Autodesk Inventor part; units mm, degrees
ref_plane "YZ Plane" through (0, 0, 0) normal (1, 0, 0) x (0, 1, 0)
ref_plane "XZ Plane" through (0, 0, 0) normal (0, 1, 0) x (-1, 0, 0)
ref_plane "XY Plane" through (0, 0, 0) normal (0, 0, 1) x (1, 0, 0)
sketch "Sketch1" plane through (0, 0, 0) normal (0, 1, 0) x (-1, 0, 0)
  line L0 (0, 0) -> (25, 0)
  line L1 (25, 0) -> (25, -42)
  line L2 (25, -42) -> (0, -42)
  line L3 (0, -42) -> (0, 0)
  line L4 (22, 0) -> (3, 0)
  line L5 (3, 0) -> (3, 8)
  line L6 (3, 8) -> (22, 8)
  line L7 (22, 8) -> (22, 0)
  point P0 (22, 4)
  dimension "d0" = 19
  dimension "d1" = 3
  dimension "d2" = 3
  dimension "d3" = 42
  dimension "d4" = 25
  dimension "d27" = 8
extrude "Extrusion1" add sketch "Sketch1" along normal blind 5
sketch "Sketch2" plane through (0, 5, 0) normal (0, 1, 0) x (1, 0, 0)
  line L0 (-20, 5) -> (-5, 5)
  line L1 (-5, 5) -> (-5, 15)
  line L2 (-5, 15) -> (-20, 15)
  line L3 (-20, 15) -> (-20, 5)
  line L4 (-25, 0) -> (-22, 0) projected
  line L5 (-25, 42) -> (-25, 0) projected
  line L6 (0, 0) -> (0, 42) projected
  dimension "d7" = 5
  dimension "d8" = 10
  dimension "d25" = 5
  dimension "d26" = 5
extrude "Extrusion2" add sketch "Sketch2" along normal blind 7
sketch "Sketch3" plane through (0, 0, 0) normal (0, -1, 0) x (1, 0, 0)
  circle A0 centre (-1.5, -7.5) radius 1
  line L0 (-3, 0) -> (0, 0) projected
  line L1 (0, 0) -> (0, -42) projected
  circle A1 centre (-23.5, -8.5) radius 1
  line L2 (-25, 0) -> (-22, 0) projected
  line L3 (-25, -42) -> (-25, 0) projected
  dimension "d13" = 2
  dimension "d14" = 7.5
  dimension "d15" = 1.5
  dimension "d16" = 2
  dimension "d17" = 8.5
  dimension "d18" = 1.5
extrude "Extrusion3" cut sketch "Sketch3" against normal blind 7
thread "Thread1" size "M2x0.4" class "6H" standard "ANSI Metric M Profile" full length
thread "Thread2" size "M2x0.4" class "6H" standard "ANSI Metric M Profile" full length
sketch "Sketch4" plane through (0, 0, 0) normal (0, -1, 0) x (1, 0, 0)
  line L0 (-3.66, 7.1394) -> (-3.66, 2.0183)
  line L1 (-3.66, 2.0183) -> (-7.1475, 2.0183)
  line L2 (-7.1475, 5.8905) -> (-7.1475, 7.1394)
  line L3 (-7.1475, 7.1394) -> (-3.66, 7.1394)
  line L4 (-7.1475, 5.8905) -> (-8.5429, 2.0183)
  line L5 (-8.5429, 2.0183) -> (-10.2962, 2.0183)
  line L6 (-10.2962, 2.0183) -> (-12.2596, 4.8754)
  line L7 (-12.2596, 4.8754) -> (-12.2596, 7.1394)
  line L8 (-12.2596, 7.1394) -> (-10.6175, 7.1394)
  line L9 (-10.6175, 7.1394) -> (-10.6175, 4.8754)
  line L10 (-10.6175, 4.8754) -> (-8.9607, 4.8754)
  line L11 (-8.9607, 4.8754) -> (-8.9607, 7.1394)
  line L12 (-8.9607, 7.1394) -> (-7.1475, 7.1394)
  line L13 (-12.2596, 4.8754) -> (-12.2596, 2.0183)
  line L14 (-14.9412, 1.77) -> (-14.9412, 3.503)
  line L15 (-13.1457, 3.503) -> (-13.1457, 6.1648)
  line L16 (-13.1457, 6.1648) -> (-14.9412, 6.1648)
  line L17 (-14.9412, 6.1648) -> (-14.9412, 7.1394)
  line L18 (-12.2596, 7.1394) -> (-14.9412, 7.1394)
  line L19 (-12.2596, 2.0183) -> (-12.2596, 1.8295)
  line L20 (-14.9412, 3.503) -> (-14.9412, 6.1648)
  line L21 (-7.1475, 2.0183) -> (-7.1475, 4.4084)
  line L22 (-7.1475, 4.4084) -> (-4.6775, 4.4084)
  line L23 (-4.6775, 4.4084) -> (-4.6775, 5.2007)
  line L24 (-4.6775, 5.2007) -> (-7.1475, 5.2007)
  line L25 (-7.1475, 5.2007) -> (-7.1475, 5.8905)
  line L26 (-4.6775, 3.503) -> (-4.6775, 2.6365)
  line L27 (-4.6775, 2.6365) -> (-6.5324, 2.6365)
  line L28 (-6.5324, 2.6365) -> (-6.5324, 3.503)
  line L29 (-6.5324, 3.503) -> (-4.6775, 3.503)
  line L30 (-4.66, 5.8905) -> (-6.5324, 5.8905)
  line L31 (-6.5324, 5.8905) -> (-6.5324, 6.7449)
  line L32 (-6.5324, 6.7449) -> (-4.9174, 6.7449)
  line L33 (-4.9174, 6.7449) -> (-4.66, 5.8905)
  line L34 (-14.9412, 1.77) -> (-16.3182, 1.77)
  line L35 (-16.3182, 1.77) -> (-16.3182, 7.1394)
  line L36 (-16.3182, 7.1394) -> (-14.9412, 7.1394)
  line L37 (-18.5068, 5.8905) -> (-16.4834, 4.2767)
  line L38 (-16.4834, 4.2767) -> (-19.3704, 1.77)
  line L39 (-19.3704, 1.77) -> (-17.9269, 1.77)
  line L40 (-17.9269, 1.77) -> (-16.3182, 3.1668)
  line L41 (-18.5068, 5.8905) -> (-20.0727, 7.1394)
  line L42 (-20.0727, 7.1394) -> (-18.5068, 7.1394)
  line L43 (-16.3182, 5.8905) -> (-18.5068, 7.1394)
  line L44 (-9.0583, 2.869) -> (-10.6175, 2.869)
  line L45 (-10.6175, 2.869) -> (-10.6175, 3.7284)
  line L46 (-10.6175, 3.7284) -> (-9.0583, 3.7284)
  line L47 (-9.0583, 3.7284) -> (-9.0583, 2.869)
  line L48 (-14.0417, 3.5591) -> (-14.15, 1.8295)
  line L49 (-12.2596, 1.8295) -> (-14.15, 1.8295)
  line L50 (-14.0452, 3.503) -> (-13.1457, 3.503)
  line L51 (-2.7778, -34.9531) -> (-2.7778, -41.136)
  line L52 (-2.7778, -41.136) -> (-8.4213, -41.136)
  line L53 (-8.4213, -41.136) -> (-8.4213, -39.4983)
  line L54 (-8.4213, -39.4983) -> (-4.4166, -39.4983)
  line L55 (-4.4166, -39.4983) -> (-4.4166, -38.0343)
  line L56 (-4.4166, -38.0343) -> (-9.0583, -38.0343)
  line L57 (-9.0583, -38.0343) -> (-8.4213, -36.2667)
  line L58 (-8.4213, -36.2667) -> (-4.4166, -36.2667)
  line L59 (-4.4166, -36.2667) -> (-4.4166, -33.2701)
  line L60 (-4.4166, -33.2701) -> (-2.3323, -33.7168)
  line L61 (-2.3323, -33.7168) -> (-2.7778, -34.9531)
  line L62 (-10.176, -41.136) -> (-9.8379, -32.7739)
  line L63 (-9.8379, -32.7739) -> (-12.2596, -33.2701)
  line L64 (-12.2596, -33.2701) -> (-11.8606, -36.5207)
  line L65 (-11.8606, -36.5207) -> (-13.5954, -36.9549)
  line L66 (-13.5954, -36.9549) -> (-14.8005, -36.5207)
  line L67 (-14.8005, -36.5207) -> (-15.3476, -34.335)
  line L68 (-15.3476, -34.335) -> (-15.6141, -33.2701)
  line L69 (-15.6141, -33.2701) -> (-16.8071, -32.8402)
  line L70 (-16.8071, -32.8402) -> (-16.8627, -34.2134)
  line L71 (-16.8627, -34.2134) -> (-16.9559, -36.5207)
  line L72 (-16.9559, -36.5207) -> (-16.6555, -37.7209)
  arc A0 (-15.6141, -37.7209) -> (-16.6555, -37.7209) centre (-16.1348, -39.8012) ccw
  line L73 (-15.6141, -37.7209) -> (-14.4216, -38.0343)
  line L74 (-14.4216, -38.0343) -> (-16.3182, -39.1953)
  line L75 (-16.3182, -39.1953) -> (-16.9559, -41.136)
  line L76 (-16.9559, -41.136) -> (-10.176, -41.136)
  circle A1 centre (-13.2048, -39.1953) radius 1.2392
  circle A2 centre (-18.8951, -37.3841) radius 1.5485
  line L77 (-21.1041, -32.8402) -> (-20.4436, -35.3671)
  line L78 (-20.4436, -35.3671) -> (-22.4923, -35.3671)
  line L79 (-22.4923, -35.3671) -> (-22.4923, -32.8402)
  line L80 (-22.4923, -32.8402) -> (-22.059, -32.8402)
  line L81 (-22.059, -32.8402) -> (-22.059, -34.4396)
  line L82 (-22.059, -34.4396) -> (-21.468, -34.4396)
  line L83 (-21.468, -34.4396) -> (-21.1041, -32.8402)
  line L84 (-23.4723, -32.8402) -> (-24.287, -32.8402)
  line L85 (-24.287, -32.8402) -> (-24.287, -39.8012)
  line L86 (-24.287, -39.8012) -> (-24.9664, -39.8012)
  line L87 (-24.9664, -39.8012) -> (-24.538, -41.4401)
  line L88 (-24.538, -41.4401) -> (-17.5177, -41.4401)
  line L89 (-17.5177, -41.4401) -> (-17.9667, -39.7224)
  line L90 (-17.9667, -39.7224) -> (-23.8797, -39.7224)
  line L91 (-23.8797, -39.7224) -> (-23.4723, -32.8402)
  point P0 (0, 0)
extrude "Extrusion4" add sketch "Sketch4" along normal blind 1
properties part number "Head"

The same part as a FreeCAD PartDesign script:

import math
import FreeCAD as App
import Part
import Sketcher
from FreeCAD import Vector
Q = App.Units.Quantity


def add_polygon(sketch, points):
    """Adds a closed chain of lines whose ends are joined by coincident constraints."""
    first, n = sketch.GeometryCount, len(points)
    for a, b in zip(points, points[1:] + points[:1]):
        sketch.addGeometry(Part.LineSegment(App.Vector(*a, 0), App.Vector(*b, 0)), False)
    for i in range(n):
        sketch.addConstraint(Sketcher.Constraint("Coincident", first + i, 2, first + (i + 1) % n, 1))

doc = App.newDocument("Part")
body = doc.addObject("PartDesign::Body", "Body")

sketch1 = body.newObject("Sketcher::SketchObject", "Sketch")
sketch1.AttachmentSupport = (doc.getObject("XZ_Plane"), [""])
sketch1.MapMode = "FlatFace"
add_polygon(sketch1, [(-3, 0), (0, 0), (0, -42), (-25, -42), (-25, 0), (-22, 0), (-22, 8), (-3, 8)])
sketch1.addConstraint([
    Sketcher.Constraint("Horizontal", 0),
    Sketcher.Constraint("Vertical", 1),
    Sketcher.Constraint("Horizontal", 2),
    Sketcher.Constraint("Vertical", 3),
    Sketcher.Constraint("Horizontal", 4),
    Sketcher.Constraint("Vertical", 5),
    Sketcher.Constraint("Horizontal", 6),
    Sketcher.Constraint("Vertical", 7),
    Sketcher.Constraint("Coincident", 0, 2, -1, 1),
    Sketcher.Constraint("PointOnObject", 3, 2, -1),
    Sketcher.Constraint("Equal", 0, 4),
    Sketcher.Constraint("DistanceX", 0, 1, 0, 2, Q("3 mm")),
    Sketcher.Constraint("DistanceX", 2, 2, 2, 1, Q("25 mm")),
    Sketcher.Constraint("DistanceY", 1, 2, 1, 1, Q("42 mm")),
    Sketcher.Constraint("DistanceY", 5, 1, 5, 2, Q("8 mm")),
])
pad1 = body.newObject("PartDesign::Pad", "Pad")
pad1.Profile = sketch1
pad1.Length = 5
pad1.Reversed = True

sketch2 = body.newObject("Sketcher::SketchObject", "Sketch001")
sketch2.AttachmentSupport = (doc.getObject("XZ_Plane"), [""])
sketch2.MapMode = "FlatFace"
sketch2.AttachmentOffset = App.Placement(Vector(0, 0, -5), App.Rotation())
add_polygon(sketch2, [(-20, -15), (-20, -5), (-5, -5), (-5, -15)])
sketch2.addConstraint([
    Sketcher.Constraint("Vertical", 0),
    Sketcher.Constraint("Horizontal", 1),
    Sketcher.Constraint("Vertical", 2),
    Sketcher.Constraint("Horizontal", 3),
    Sketcher.Constraint("DistanceY", 0, 1, 0, 2, Q("10 mm")),
    Sketcher.Constraint("DistanceY", 0, 2, -1, 1, Q("5 mm")),
    Sketcher.Constraint("DistanceX", 1, 2, -1, 1, Q("5 mm")),
    Sketcher.Constraint("DistanceX", 1, 1, 1, 2, Q("15 mm")),
])
pad2 = body.newObject("PartDesign::Pad", "Pad001")
pad2.Profile = sketch2
pad2.Length = 7
pad2.Reversed = True

sketch3 = body.newObject("Sketcher::SketchObject", "Sketch002")
sketch3.AttachmentSupport = (doc.getObject("XZ_Plane"), [""])
sketch3.MapMode = "FlatFace"
sketch3.addGeometry([
    Part.Circle(Vector(-1.5, -7.5, 0), Vector(0, 0, 1), 1),
    Part.Circle(Vector(-23.5, -8.5, 0), Vector(0, 0, 1), 1),
], False)
sketch3.addConstraint([
    Sketcher.Constraint("Equal", 0, 1),
    Sketcher.Constraint("Diameter", 0, Q("2 mm")),
    Sketcher.Constraint("DistanceX", 0, 3, -1, 1, Q("1.5 mm")),
    Sketcher.Constraint("DistanceY", 0, 3, -1, 1, Q("7.5 mm")),
    Sketcher.Constraint("DistanceY", 1, 3, -1, 1, Q("8.5 mm")),
    Sketcher.Constraint("DistanceX", 1, 3, 0, 3, Q("22 mm")),
])
pocket1 = body.newObject("PartDesign::Pocket", "Pocket")
pocket1.Profile = sketch3
pocket1.Length = 7

sketch4 = body.newObject("Sketcher::SketchObject", "Sketch003")
sketch4.AttachmentSupport = (doc.getObject("XZ_Plane"), [""])
sketch4.MapMode = "FlatFace"
add_polygon(sketch4, [(-3.66, 2.0183), (-3.66, 7.1394), (-8.9607, 7.1394), (-8.9607, 4.8754), (-10.6175, 4.8754), (-10.6175, 7.1394), (-16.3182, 7.1394), (-16.3182, 5.8905), (-18.5068, 7.1394), (-20.0727, 7.1394), (-18.5068, 5.8905), (-16.4834, 4.2767), (-19.3704, 1.77), (-17.9269, 1.77), (-16.3182, 3.1668), (-16.3182, 1.77), (-14.9412, 1.77), (-14.9412, 6.1648), (-13.1457, 6.1648), (-13.1457, 3.503), (-14.045213, 3.503001), (-14.15, 1.8295), (-12.2596, 1.8295), (-12.2596, 4.8754), (-10.2962, 2.0183), (-8.5429, 2.0183), (-7.1475, 5.8905), (-7.1475, 5.2007), (-4.6775, 5.2007), (-4.6775, 4.4084), (-7.1475, 4.4084), (-7.1475, 2.0183)])
add_polygon(sketch4, [(-6.5324, 3.503), (-4.6775, 3.503), (-4.6775, 2.6365), (-6.5324, 2.6365)])
add_polygon(sketch4, [(-4.9174, 6.7449), (-4.66, 5.8905), (-6.5324, 5.8905), (-6.5324, 6.7449)])
add_polygon(sketch4, [(-9.0583, 2.869), (-10.6175, 2.869), (-10.6175, 3.7284), (-9.0583, 3.7284)])
add_polygon(sketch4, [(-2.7778, -41.136), (-2.7778, -34.9531), (-2.3323, -33.7168), (-4.4166, -33.2701), (-4.4166, -36.2667), (-8.4213, -36.2667), (-9.0583, -38.0343), (-4.4166, -38.0343), (-4.4166, -39.4983), (-8.4213, -39.4983), (-8.4213, -41.136)])
sketch4.addGeometry(Part.LineSegment(Vector(-16.9559, -41.136, 0), Vector(-10.176, -41.136, 0)), False)
sketch4.addGeometry(Part.LineSegment(Vector(-10.176, -41.136, 0), Vector(-9.8379, -32.7739, 0)), False)
sketch4.addGeometry(Part.LineSegment(Vector(-9.8379, -32.7739, 0), Vector(-12.2596, -33.2701, 0)), False)
sketch4.addGeometry(Part.LineSegment(Vector(-12.2596, -33.2701, 0), Vector(-11.8606, -36.5207, 0)), False)
sketch4.addGeometry(Part.LineSegment(Vector(-11.8606, -36.5207, 0), Vector(-13.5954, -36.9549, 0)), False)
sketch4.addGeometry(Part.LineSegment(Vector(-13.5954, -36.9549, 0), Vector(-14.8005, -36.5207, 0)), False)
sketch4.addGeometry(Part.LineSegment(Vector(-14.8005, -36.5207, 0), Vector(-15.3476, -34.335, 0)), False)
sketch4.addGeometry(Part.LineSegment(Vector(-15.3476, -34.335, 0), Vector(-15.6141, -33.2701, 0)), False)
sketch4.addGeometry(Part.LineSegment(Vector(-15.6141, -33.2701, 0), Vector(-16.8071, -32.8402, 0)), False)
sketch4.addGeometry(Part.LineSegment(Vector(-16.8071, -32.8402, 0), Vector(-16.8627, -34.2134, 0)), False)
sketch4.addGeometry(Part.LineSegment(Vector(-16.8627, -34.2134, 0), Vector(-16.9559, -36.5207, 0)), False)
sketch4.addGeometry(Part.LineSegment(Vector(-16.9559, -36.5207, 0), Vector(-16.6555, -37.7209, 0)), False)
sketch4.addGeometry(Part.ArcOfCircle(Part.Circle(Vector(-16.1348, -39.8012, 0), Vector(0, 0, 1), 2.144476), math.radians(75.947556), math.radians(104.052444)), False)
sketch4.addGeometry(Part.LineSegment(Vector(-15.6141, -37.7209, 0), Vector(-14.4216, -38.0343, 0)), False)
sketch4.addGeometry(Part.LineSegment(Vector(-14.4216, -38.0343, 0), Vector(-16.3182, -39.1953, 0)), False)
sketch4.addGeometry(Part.LineSegment(Vector(-16.3182, -39.1953, 0), Vector(-16.9559, -41.136, 0)), False)
sketch4.addGeometry(Part.Circle(Vector(-13.2048, -39.1953, 0), Vector(0, 0, 1), 1.2392), False)
sketch4.addGeometry(Part.Circle(Vector(-18.8951, -37.3841, 0), Vector(0, 0, 1), 1.5485), False)
add_polygon(sketch4, [(-20.4436, -35.3671), (-21.1041, -32.8402), (-21.468, -34.4396), (-22.059, -34.4396), (-22.059, -32.8402), (-22.4923, -32.8402), (-22.4923, -35.3671)])
add_polygon(sketch4, [(-23.8797, -39.7224), (-23.4723, -32.8402), (-24.287, -32.8402), (-24.287, -39.8012), (-24.9664, -39.8012), (-24.538, -41.4401), (-17.5177, -41.4401), (-17.9667, -39.7224)])
sketch4.addConstraint([
    Sketcher.Constraint("Coincident", 55, 2, 56, 1),
    Sketcher.Constraint("Coincident", 56, 2, 57, 1),
    Sketcher.Constraint("Coincident", 57, 2, 58, 1),
    Sketcher.Constraint("Coincident", 58, 2, 59, 1),
    Sketcher.Constraint("Coincident", 59, 2, 60, 1),
    Sketcher.Constraint("Coincident", 60, 2, 61, 1),
    Sketcher.Constraint("Coincident", 61, 2, 62, 1),
    Sketcher.Constraint("Coincident", 62, 2, 63, 1),
    Sketcher.Constraint("Coincident", 63, 2, 64, 1),
    Sketcher.Constraint("Coincident", 64, 2, 65, 1),
    Sketcher.Constraint("Coincident", 65, 2, 66, 1),
    Sketcher.Constraint("Coincident", 66, 2, 67, 2),
    Sketcher.Constraint("Coincident", 67, 1, 68, 1),
    Sketcher.Constraint("Coincident", 68, 2, 69, 1),
    Sketcher.Constraint("Coincident", 69, 2, 70, 1),
    Sketcher.Constraint("Coincident", 70, 2, 55, 1),
    Sketcher.Constraint("Vertical", 0),
    Sketcher.Constraint("Horizontal", 1),
    Sketcher.Constraint("Vertical", 2),
    Sketcher.Constraint("Horizontal", 3),
    Sketcher.Constraint("Vertical", 4),
    Sketcher.Constraint("Horizontal", 5),
    Sketcher.Constraint("Vertical", 6),
    Sketcher.Constraint("Horizontal", 8),
    Sketcher.Constraint("Horizontal", 12),
    Sketcher.Constraint("Vertical", 14),
    Sketcher.Constraint("Horizontal", 15),
    Sketcher.Constraint("Vertical", 16),
    Sketcher.Constraint("Horizontal", 17),
    Sketcher.Constraint("Vertical", 18),
    Sketcher.Constraint("Horizontal", 19),
    Sketcher.Constraint("Horizontal", 21),
    Sketcher.Constraint("Vertical", 22),
    Sketcher.Constraint("Horizontal", 24),
    Sketcher.Constraint("Vertical", 26),
    Sketcher.Constraint("Horizontal", 27),
    Sketcher.Constraint("Vertical", 28),
    Sketcher.Constraint("Horizontal", 29),
    Sketcher.Constraint("Vertical", 30),
    Sketcher.Constraint("Horizontal", 31),
    Sketcher.Constraint("Horizontal", 32),
    Sketcher.Constraint("Vertical", 33),
    Sketcher.Constraint("Horizontal", 34),
    Sketcher.Constraint("Vertical", 35),
    Sketcher.Constraint("Horizontal", 37),
    Sketcher.Constraint("Vertical", 38),
    Sketcher.Constraint("Horizontal", 39),
    Sketcher.Constraint("Horizontal", 40),
    Sketcher.Constraint("Vertical", 41),
    Sketcher.Constraint("Horizontal", 42),
    Sketcher.Constraint("Vertical", 43),
    Sketcher.Constraint("Vertical", 44),
    Sketcher.Constraint("Vertical", 47),
    Sketcher.Constraint("Horizontal", 48),
    Sketcher.Constraint("Horizontal", 50),
    Sketcher.Constraint("Vertical", 51),
    Sketcher.Constraint("Horizontal", 52),
    Sketcher.Constraint("Vertical", 53),
    Sketcher.Constraint("Horizontal", 54),
    Sketcher.Constraint("Horizontal", 55),
    Sketcher.Constraint("Horizontal", 75),
    Sketcher.Constraint("Vertical", 76),
    Sketcher.Constraint("Horizontal", 77),
    Sketcher.Constraint("Vertical", 78),
    Sketcher.Constraint("Horizontal", 79),
    Sketcher.Constraint("Horizontal", 81),
    Sketcher.Constraint("Vertical", 82),
    Sketcher.Constraint("Horizontal", 83),
    Sketcher.Constraint("Horizontal", 85),
    Sketcher.Constraint("Horizontal", 87),
    Sketcher.Constraint("Diameter", 72, Q("3.097 mm")),
    Sketcher.Constraint("Diameter", 71, Q("2.4784 mm")),
    Sketcher.Constraint("DistanceX", 27, 1, 27, 2, Q("2.47 mm")),
    Sketcher.Constraint("DistanceX", 29, 2, 29, 1, Q("2.47 mm")),
    Sketcher.Constraint("DistanceX", 55, 1, 55, 2, Q("6.78 mm")),
    Sketcher.Constraint("DistanceY", 30, 2, 30, 1, Q("2.39 mm")),
    Sketcher.Constraint("Radius", 67, Q("2.1445 mm")),
    Sketcher.Constraint("DistanceX", 8, 2, 8, 1, Q("1.566 mm")),
    Sketcher.Constraint("DistanceX", 15, 1, 15, 2, Q("1.377 mm")),
    Sketcher.Constraint("DistanceX", 32, 1, 32, 2, Q("1.855 mm")),
    Sketcher.Constraint("DistanceX", 39, 1, 39, 2, Q("1.615 mm")),
    Sketcher.Constraint("DistanceX", 75, 2, 75, 1, Q("0.591 mm")),
    Sketcher.Constraint("DistanceX", 87, 2, 87, 1, Q("5.913 mm")),
    Sketcher.Constraint("DistanceY", 0, 1, 0, 2, Q("5.121 mm")),
    Sketcher.Constraint("DistanceY", 2, 2, 2, 1, Q("2.264 mm")),
    Sketcher.Constraint("DistanceY", 4, 1, 4, 2, Q("2.264 mm")),
    Sketcher.Constraint("DistanceY", 6, 2, 6, 1, Q("1.249 mm")),
    Sketcher.Constraint("DistanceY", 22, 1, 22, 2, Q("3.046 mm")),
    Sketcher.Constraint("DistanceY", 44, 1, 44, 2, Q("6.183 mm")),
    Sketcher.Constraint("DistanceY", 51, 2, 51, 1, Q("1.464 mm")),
    Sketcher.Constraint("DistanceY", 78, 2, 78, 1, Q("2.527 mm")),
    Sketcher.Constraint("DistanceY", 82, 2, 82, 1, Q("6.961 mm")),
    Sketcher.Constraint("DistanceX", 0, 2, -1, 1, Q("3.66 mm")),
    Sketcher.Constraint("DistanceY", -1, 1, 11, 2, Q("1.77 mm")),
    Sketcher.Constraint("DistanceY", -1, 1, 14, 2, Q("1.77 mm")),
    Sketcher.Constraint("DistanceX", 20, 2, -1, 1, Q("14.15 mm")),
    Sketcher.Constraint("DistanceX", 36, 2, -1, 1, Q("4.66 mm")),
    Sketcher.Constraint("DistanceY", 46, 2, -1, 1, Q("33.27 mm")),
    Sketcher.Constraint("DistanceY", 57, 2, -1, 1, Q("33.27 mm")),
    Sketcher.Constraint("DistanceY", 62, 2, -1, 1, Q("33.27 mm")),
    Sketcher.Constraint("DistanceY", 84, 2, -1, 1, Q("41.44 mm")),
    Sketcher.Constraint("Distance", 9, Q("2.003 mm")),
    Sketcher.Constraint("Distance", 25, Q("4.116 mm")),
    Sketcher.Constraint("Distance", 45, Q("1.314 mm")),
    Sketcher.Constraint("Distance", 56, Q("8.369 mm")),
    Sketcher.Constraint("Distance", 57, Q("2.472 mm")),
    Sketcher.Constraint("Distance", 58, Q("3.275 mm")),
    Sketcher.Constraint("Distance", 60, Q("1.281 mm")),
    Sketcher.Constraint("Distance", 63, Q("1.268 mm")),
    Sketcher.Constraint("Distance", 68, Q("1.233 mm")),
    Sketcher.Constraint("Distance", 84, Q("1.694 mm")),
    Sketcher.Constraint("DistanceX", 1, 2, 1, 1, Q("5.3007 mm")),
    Sketcher.Constraint("DistanceX", 3, 2, 3, 1, Q("1.6568 mm")),
    Sketcher.Constraint("DistanceX", 5, 2, 5, 1, Q("5.7007 mm")),
    Sketcher.Constraint("DistanceX", 12, 1, 12, 2, Q("1.4435 mm")),
    Sketcher.Constraint("DistanceX", 17, 1, 17, 2, Q("1.7955 mm")),
    Sketcher.Constraint("DistanceX", 19, 2, 19, 1, Q("0.8995 mm")),
    Sketcher.Constraint("DistanceX", 21, 1, 21, 2, Q("1.8904 mm")),
    Sketcher.Constraint("DistanceX", 24, 1, 24, 2, Q("1.7533 mm")),
    Sketcher.Constraint("DistanceX", 31, 1, 31, 2, Q("3.4875 mm")),
    Sketcher.Constraint("DistanceX", 37, 2, 37, 1, Q("1.8724 mm")),
    Sketcher.Constraint("DistanceX", 40, 2, 40, 1, Q("1.5592 mm")),
    Sketcher.Constraint("DistanceX", 48, 2, 48, 1, Q("4.0047 mm")),
    Sketcher.Constraint("DistanceX", 50, 1, 50, 2, Q("4.6417 mm")),
    Sketcher.Constraint("DistanceX", 52, 2, 52, 1, Q("4.0047 mm")),
    Sketcher.Constraint("DistanceX", 54, 1, 54, 2, Q("5.6435 mm")),
    Sketcher.Constraint("DistanceX", 77, 2, 77, 1, Q("0.4333 mm")),
    Sketcher.Constraint("DistanceX", 79, 1, 79, 2, Q("2.0487 mm")),
    Sketcher.Constraint("DistanceX", 81, 2, 81, 1, Q("0.8147 mm")),
    Sketcher.Constraint("DistanceX", 83, 2, 83, 1, Q("0.6794 mm")),
    Sketcher.Constraint("DistanceX", 85, 1, 85, 2, Q("7.0203 mm")),
    Sketcher.Constraint("DistanceY", 14, 2, 14, 1, Q("1.3968 mm")),
    Sketcher.Constraint("DistanceY", 16, 1, 16, 2, Q("4.3948 mm")),
    Sketcher.Constraint("DistanceY", 18, 2, 18, 1, Q("2.6618 mm")),
    Sketcher.Constraint("DistanceY", 26, 2, 26, 1, Q("0.6898 mm")),
    Sketcher.Constraint("DistanceY", 28, 2, 28, 1, Q("0.7923 mm")),
    Sketcher.Constraint("DistanceY", 33, 2, 33, 1, Q("0.8665 mm")),
    Sketcher.Constraint("DistanceY", 38, 1, 38, 2, Q("0.8544 mm")),
    Sketcher.Constraint("DistanceY", 41, 1, 41, 2, Q("0.8594 mm")),
    Sketcher.Constraint("DistanceY", 47, 2, 47, 1, Q("2.9966 mm")),
    Sketcher.Constraint("DistanceY", 53, 2, 53, 1, Q("1.6377 mm")),
    Sketcher.Constraint("DistanceY", 76, 1, 76, 2, Q("1.5994 mm")),
    Sketcher.Constraint("DistanceX", 72, 3, -1, 1, Q("18.895 mm")),
    Sketcher.Constraint("DistanceY", 72, 3, -1, 1, Q("37.384 mm")),
    Sketcher.Constraint("DistanceX", 12, 2, -1, 1, Q("17.927 mm")),
    Sketcher.Constraint("DistanceX", 24, 2, -1, 1, Q("8.543 mm")),
    Sketcher.Constraint("DistanceY", -1, 1, 32, 2, Q("3.503 mm")),
    Sketcher.Constraint("DistanceY", -1, 1, 38, 2, Q("6.745 mm")),
    Sketcher.Constraint("DistanceY", -1, 1, 40, 2, Q("2.869 mm")),
    Sketcher.Constraint("DistanceY", 44, 2, -1, 1, Q("34.953 mm")),
    Sketcher.Constraint("DistanceX", 55, 2, -1, 1, Q("10.176 mm")),
    Sketcher.Constraint("DistanceY", 55, 2, -1, 1, Q("41.136 mm")),
    Sketcher.Constraint("DistanceX", 56, 2, -1, 1, Q("9.838 mm")),
    Sketcher.Constraint("DistanceY", 59, 2, -1, 1, Q("36.955 mm")),
    Sketcher.Constraint("DistanceY", 61, 2, -1, 1, Q("34.335 mm")),
    Sketcher.Constraint("DistanceX", 62, 2, -1, 1, Q("15.614 mm")),
    Sketcher.Constraint("DistanceX", 63, 2, -1, 1, Q("16.807 mm")),
    Sketcher.Constraint("DistanceX", 65, 2, -1, 1, Q("16.956 mm")),
    Sketcher.Constraint("DistanceY", 66, 2, -1, 1, Q("37.721 mm")),
    Sketcher.Constraint("DistanceX", 67, 1, -1, 1, Q("15.614 mm")),
    Sketcher.Constraint("DistanceY", 67, 1, -1, 1, Q("37.721 mm")),
    Sketcher.Constraint("DistanceX", 73, 2, -1, 1, Q("21.104 mm")),
    Sketcher.Constraint("DistanceX", 74, 2, -1, 1, Q("21.468 mm")),
    Sketcher.Constraint("DistanceY", 78, 2, -1, 1, Q("35.367 mm")),
    Sketcher.Constraint("DistanceX", 81, 2, -1, 1, Q("24.287 mm")),
    Sketcher.Constraint("DistanceX", 84, 2, -1, 1, Q("24.538 mm")),
    Sketcher.Constraint("Distance", 7, Q("2.5199 mm")),
    Sketcher.Constraint("Distance", 10, Q("2.5881 mm")),
    Sketcher.Constraint("Distance", 11, Q("3.8234 mm")),
    Sketcher.Constraint("Distance", 13, Q("2.1305 mm")),
    Sketcher.Constraint("Distance", 20, Q("1.6768 mm")),
    Sketcher.Constraint("Distance", 23, Q("3.4667 mm")),
    Sketcher.Constraint("Distance", 46, Q("2.1316 mm")),
    Sketcher.Constraint("Distance", 49, Q("1.8789 mm")),
    Sketcher.Constraint("Distance", 59, Q("1.7883 mm")),
    Sketcher.Constraint("Distance", 61, Q("2.2531 mm")),
    Sketcher.Constraint("Distance", 62, Q("1.0977 mm")),
    Sketcher.Constraint("Distance", 64, Q("1.3743 mm")),
    Sketcher.Constraint("Distance", 65, Q("2.3092 mm")),
    Sketcher.Constraint("Distance", 66, Q("1.2372 mm")),
    Sketcher.Constraint("Distance", 69, Q("2.2237 mm")),
    Sketcher.Constraint("Distance", 70, Q("2.0428 mm")),
    Sketcher.Constraint("Distance", 73, Q("2.6118 mm")),
    Sketcher.Constraint("Distance", 80, Q("6.8942 mm")),
    Sketcher.Constraint("Distance", 86, Q("1.7754 mm")),
    Sketcher.Constraint("DistanceX", 71, 3, -1, 1, Q("13.2048 mm")),
    Sketcher.Constraint("DistanceY", 71, 3, -1, 1, Q("39.1953 mm")),
    Sketcher.Constraint("DistanceX", 7, 2, -1, 1, Q("18.5068 mm")),
    Sketcher.Constraint("DistanceX", 9, 2, -1, 1, Q("18.5068 mm")),
    Sketcher.Constraint("DistanceX", 32, 2, -1, 1, Q("4.6775 mm")),
    Sketcher.Constraint("DistanceX", 40, 2, -1, 1, Q("10.6175 mm")),
    Sketcher.Constraint("DistanceX", 44, 2, -1, 1, Q("2.7778 mm")),
    Sketcher.Constraint("DistanceX", 58, 2, -1, 1, Q("11.8606 mm")),
    Sketcher.Constraint("DistanceX", 64, 2, -1, 1, Q("16.8627 mm")),
    Sketcher.Constraint("DistanceX", 68, 2, -1, 1, Q("14.4216 mm")),
])
pad3 = body.newObject("PartDesign::Pad", "Pad002")
pad3.Profile = sketch4
pad3.Length = 1

doc.recompute()
